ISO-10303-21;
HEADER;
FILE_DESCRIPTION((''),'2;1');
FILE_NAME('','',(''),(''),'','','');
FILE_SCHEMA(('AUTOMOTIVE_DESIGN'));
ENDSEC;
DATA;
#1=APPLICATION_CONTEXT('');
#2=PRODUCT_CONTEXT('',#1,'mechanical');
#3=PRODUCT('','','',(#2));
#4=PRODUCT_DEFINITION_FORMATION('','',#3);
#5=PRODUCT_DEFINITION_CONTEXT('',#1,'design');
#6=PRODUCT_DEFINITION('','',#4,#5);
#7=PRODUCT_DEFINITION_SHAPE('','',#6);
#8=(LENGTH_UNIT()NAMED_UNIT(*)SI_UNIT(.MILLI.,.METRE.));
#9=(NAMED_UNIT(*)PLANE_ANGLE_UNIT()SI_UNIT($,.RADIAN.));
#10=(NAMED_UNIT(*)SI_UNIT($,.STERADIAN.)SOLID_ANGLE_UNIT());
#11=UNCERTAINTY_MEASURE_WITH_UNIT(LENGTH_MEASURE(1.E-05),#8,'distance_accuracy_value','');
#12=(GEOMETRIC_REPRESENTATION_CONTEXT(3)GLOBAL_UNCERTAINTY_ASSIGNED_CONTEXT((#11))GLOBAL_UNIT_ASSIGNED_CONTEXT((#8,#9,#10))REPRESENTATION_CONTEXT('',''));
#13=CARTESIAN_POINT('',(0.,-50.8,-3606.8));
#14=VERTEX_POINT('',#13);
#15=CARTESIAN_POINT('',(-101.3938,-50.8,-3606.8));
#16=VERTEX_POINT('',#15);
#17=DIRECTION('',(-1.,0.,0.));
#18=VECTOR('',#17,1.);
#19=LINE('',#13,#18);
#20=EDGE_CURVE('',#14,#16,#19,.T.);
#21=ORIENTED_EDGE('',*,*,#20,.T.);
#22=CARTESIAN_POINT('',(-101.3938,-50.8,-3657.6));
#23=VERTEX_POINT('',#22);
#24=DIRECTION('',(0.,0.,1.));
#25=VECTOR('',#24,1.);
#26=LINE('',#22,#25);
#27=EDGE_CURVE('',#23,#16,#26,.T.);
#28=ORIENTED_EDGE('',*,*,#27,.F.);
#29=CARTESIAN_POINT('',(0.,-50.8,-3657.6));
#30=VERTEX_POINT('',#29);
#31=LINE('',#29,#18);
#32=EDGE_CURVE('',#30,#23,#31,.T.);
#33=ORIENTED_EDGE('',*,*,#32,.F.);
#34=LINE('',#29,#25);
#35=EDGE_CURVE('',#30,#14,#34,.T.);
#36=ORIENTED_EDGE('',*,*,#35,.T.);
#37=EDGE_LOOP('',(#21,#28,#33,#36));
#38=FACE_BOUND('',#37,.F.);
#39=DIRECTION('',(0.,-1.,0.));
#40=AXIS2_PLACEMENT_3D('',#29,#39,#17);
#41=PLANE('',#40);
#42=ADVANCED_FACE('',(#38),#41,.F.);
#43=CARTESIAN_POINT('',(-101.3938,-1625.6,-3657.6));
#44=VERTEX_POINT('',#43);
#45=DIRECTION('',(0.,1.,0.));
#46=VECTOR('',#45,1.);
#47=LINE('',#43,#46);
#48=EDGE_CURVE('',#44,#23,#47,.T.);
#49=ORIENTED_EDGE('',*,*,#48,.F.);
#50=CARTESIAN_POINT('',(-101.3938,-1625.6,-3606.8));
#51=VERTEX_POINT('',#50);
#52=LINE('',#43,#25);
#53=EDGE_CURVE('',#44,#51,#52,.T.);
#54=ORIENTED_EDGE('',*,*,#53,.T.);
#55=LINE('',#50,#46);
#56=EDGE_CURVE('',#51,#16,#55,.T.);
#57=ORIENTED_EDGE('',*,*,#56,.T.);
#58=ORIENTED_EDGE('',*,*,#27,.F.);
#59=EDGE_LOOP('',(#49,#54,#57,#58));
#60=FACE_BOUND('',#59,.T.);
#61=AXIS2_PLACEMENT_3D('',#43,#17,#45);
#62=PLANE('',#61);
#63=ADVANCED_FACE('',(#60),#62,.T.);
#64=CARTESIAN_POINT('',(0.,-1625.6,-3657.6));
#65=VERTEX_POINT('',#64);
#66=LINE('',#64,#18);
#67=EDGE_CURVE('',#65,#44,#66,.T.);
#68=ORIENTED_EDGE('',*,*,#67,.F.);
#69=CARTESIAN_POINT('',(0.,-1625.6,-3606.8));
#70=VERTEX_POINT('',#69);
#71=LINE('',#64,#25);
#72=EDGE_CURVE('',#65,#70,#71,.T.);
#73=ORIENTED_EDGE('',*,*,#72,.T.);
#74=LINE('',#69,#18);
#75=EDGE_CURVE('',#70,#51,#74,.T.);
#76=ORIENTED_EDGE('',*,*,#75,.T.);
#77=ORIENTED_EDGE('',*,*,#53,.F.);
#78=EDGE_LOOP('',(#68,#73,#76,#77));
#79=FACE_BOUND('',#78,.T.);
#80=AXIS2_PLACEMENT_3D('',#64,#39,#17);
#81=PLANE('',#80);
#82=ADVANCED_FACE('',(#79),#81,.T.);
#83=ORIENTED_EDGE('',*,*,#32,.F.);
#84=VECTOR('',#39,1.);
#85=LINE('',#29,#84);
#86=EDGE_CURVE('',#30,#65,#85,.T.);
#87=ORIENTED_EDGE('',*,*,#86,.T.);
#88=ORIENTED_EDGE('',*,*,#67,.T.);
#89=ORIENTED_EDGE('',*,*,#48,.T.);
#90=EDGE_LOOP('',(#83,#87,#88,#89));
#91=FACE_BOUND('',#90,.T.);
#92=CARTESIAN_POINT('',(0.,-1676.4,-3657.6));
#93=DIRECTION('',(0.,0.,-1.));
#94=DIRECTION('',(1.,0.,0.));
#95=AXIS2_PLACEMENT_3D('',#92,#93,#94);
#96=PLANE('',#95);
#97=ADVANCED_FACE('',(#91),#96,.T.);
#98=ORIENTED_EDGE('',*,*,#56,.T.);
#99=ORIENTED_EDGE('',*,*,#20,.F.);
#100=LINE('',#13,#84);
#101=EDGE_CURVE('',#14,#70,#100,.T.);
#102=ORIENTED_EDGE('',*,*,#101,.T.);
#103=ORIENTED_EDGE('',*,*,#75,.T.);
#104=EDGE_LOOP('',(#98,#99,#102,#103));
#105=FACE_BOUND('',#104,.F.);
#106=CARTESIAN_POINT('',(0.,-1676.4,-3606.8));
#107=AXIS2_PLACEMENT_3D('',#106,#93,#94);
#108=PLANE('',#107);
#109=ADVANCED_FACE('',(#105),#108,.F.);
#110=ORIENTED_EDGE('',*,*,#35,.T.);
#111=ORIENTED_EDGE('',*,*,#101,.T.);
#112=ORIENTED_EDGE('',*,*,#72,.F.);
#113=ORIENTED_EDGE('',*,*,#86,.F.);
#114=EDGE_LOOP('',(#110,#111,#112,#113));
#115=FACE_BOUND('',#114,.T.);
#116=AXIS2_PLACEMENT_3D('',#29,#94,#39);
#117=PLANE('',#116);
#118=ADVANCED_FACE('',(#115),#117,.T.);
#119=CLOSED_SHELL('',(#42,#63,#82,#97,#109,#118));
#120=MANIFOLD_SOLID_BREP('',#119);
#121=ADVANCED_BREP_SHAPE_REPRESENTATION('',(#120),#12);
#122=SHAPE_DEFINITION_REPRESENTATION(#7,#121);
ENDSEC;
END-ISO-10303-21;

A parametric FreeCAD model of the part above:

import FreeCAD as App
import Part
import Sketcher
from FreeCAD import Vector
Q = App.Units.Quantity


def add_polygon(sketch, points):
    """Adds a closed chain of lines whose ends are joined by coincident constraints."""
    first, n = sketch.GeometryCount, len(points)
    for a, b in zip(points, points[1:] + points[:1]):
        sketch.addGeometry(Part.LineSegment(App.Vector(*a, 0), App.Vector(*b, 0)), False)
    for i in range(n):
        sketch.addConstraint(Sketcher.Constraint("Coincident", first + i, 2, first + (i + 1) % n, 1))

doc = App.newDocument("Part")
body = doc.addObject("PartDesign::Body", "Body")

# Sketch on XY plane
sketch1 = body.newObject("Sketcher::SketchObject", "Sketch")
sketch1.AttachmentSupport = (doc.getObject("XY_Plane"), [""])
sketch1.MapMode = "FlatFace"
sketch1.AttachmentOffset = App.Placement(Vector(0, 0, -144 * 25.4), App.Rotation())
add_polygon(sketch1, [(0, -50.8), (0, -1625.6), (-101.3938, -1625.6), (-101.3938, -50.8)])  # lines 0-3
sketch1.addConstraint([
    Sketcher.Constraint("Vertical", 0),
    Sketcher.Constraint("Horizontal", 1),
    Sketcher.Constraint("Vertical", 2),
    Sketcher.Constraint("Horizontal", 3),
    Sketcher.Constraint("PointOnObject", 0, 2, -2),
    Sketcher.Constraint("DistanceY", 0, 2, 0, 1, Q("62 in")),
    Sketcher.Constraint("DistanceY", 0, 2, -1, 1, Q("64 in")),
    Sketcher.Constraint("DistanceX", 1, 2, 1, 1, Q("101.3938 mm")),
])
pad1 = body.newObject("PartDesign::Pad", "Pad")
pad1.Profile = sketch1
pad1.Length = Q("2 in")

doc.recompute()
